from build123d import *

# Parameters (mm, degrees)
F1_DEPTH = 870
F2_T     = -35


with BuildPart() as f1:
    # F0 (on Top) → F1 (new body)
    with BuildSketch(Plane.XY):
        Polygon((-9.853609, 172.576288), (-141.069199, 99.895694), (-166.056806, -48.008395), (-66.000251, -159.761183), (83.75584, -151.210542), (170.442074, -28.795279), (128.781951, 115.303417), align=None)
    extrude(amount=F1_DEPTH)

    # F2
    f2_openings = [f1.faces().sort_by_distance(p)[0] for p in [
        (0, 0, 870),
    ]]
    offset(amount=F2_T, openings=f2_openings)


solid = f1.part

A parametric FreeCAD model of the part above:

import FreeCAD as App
import Part
import Sketcher
from FreeCAD import Vector
Q = App.Units.Quantity


def faces_at(feature, points):
    """Names of the faces that lie closest to the given points."""
    faces = feature.Shape.Faces
    near = lambda p: min(range(len(faces)), key=lambda i: faces[i].distToShape(Part.Vertex(*p))[0])
    return sorted({f"Face{near(p) + 1}" for p in points})


def add_polygon(sketch, points):
    """Adds a closed chain of lines whose ends are joined by coincident constraints."""
    first, n = sketch.GeometryCount, len(points)
    for a, b in zip(points, points[1:] + points[:1]):
        sketch.addGeometry(Part.LineSegment(App.Vector(*a, 0), App.Vector(*b, 0)), False)
    for i in range(n):
        sketch.addConstraint(Sketcher.Constraint("Coincident", first + i, 2, first + (i + 1) % n, 1))

doc = App.newDocument("Part")
body = doc.addObject("PartDesign::Body", "Body")

sketch1 = body.newObject("Sketcher::SketchObject", "Sketch")
sketch1.AttachmentSupport = (doc.getObject("XY_Plane"), [""])
sketch1.MapMode = "FlatFace"
add_polygon(sketch1, [(-9.853609, 172.576288), (-141.069199, 99.895694), (-166.056806, -48.008395), (-66.000251, -159.761183), (83.75584, -151.210542), (170.442074, -28.795279), (128.781951, 115.303417)])
sketch1.addConstraint(Sketcher.Constraint("Equal", 0, 1))
sketch1.addConstraint(Sketcher.Constraint("Equal", 1, 2))
sketch1.addConstraint(Sketcher.Constraint("Equal", 2, 3))
sketch1.addConstraint(Sketcher.Constraint("Equal", 3, 4))
sketch1.addConstraint(Sketcher.Constraint("Equal", 4, 5))
sketch1.addConstraint(Sketcher.Constraint("Equal", 5, 6))
sketch1.addConstraint(Sketcher.Constraint("Distance", 0, Q("149.999999 mm")))
sketch1.addConstraint(Sketcher.Constraint("DistanceX", 0, 2, -1, 1, Q("141.069199 mm")))
sketch1.addConstraint(Sketcher.Constraint("DistanceX", 2, 2, 5, 2, Q("194.782202 mm")))
sketch1.addConstraint(Sketcher.Constraint("DistanceY", 2, 2, 5, 2, Q("275.0646 mm")))
sketch1.addConstraint(Sketcher.Constraint("DistanceX", 2, 2, -1, 1, Q("66.000251 mm")))
sketch1.addConstraint(Sketcher.Constraint("DistanceX", -1, 1, 3, 2, Q("83.75584 mm")))
sketch1.addConstraint(Sketcher.Constraint("DistanceY", 3, 2, -1, 1, Q("151.210542 mm")))
sketch1.addConstraint(Sketcher.Constraint("DistanceX", 6, 2, -1, 1, Q("9.853609 mm")))
pad1 = body.newObject("PartDesign::Pad", "Pad")
pad1.Profile = sketch1
pad1.Length = 870
doc.recompute()

thickness = body.newObject("PartDesign::Thickness", "Thickness")
thickness.Base = (pad1, faces_at(pad1, [(2.193, 6.408, 870)]))
thickness.Value = 35
thickness.Reversed = True
thickness.Join = "Arc"

doc.recompute()
